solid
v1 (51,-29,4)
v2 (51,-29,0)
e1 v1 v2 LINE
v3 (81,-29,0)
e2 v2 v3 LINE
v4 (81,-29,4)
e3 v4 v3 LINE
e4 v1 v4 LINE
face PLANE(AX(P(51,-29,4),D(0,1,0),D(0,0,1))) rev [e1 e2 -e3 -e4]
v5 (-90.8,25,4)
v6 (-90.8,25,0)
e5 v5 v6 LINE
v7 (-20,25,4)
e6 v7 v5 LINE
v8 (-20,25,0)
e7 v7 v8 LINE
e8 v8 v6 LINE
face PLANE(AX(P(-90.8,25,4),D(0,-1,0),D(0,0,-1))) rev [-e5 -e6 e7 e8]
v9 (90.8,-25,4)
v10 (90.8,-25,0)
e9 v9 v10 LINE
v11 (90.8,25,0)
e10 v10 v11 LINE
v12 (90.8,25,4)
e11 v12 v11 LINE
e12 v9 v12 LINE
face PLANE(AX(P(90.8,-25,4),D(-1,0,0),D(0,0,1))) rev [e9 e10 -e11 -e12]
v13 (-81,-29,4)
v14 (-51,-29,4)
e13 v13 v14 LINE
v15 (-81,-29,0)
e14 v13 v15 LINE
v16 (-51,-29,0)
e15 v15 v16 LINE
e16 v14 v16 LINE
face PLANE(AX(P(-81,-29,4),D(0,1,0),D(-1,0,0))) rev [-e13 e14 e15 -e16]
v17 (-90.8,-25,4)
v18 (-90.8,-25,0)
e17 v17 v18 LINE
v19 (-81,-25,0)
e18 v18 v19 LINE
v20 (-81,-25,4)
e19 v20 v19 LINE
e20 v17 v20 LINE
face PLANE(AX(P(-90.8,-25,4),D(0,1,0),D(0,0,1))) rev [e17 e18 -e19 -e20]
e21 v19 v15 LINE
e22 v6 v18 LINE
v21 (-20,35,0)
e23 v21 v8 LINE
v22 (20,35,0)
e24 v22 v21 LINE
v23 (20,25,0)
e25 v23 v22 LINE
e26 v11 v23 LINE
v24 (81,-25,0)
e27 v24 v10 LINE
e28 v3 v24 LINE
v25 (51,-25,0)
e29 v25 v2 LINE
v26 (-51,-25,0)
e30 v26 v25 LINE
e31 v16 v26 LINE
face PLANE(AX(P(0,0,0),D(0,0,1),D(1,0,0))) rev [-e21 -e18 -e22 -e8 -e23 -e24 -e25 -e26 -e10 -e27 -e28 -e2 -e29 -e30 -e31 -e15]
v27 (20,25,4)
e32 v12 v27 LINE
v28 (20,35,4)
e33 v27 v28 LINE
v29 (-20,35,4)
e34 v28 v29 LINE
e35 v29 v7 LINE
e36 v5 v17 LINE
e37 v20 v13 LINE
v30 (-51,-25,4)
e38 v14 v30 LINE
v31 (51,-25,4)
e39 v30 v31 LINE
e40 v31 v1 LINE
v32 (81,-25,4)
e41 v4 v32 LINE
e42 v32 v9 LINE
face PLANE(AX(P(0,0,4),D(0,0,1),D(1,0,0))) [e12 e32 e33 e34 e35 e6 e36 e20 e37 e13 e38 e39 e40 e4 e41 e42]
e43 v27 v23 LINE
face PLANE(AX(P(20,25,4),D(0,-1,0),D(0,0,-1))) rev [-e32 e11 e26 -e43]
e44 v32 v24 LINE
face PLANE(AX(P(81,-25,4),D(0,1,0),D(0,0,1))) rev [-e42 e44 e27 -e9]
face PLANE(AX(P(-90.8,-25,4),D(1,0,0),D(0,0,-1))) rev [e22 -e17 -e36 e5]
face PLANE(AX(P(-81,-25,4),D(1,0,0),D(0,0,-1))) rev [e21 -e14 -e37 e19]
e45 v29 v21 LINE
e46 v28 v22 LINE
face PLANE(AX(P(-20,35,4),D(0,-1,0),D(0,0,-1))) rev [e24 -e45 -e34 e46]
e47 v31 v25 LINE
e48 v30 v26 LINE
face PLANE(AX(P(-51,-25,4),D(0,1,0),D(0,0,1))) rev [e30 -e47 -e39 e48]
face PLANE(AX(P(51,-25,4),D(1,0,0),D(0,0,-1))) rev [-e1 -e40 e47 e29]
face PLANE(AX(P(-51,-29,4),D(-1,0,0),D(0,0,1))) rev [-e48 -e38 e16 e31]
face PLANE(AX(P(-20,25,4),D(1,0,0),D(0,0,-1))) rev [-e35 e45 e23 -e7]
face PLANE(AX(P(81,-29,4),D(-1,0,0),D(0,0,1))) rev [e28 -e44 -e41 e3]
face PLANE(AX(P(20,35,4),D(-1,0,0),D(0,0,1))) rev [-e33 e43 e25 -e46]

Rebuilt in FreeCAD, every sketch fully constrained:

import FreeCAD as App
import Part
import Sketcher
from FreeCAD import Vector


def add_polygon(sketch, points):
    """Adds a closed chain of lines whose ends are joined by coincident constraints."""
    first, n = sketch.GeometryCount, len(points)
    for a, b in zip(points, points[1:] + points[:1]):
        sketch.addGeometry(Part.LineSegment(App.Vector(*a, 0), App.Vector(*b, 0)), False)
    for i in range(n):
        sketch.addConstraint(Sketcher.Constraint("Coincident", first + i, 2, first + (i + 1) % n, 1))

doc = App.newDocument("Part")
body = doc.addObject("PartDesign::Body", "Body")

# Sketch on XY plane
sketch1 = body.newObject("Sketcher::SketchObject", "Sketch")
sketch1.AttachmentSupport = (doc.getObject("XY_Plane"), [""])
sketch1.MapMode = "FlatFace"
add_polygon(sketch1, [(-81, -25), (-81, -29), (-51, -29), (-51, -25), (51, -25), (51, -29), (81, -29), (81, -25), (90.8, -25), (90.8, 25), (20, 25), (20, 35), (-20, 35), (-20, 25), (-90.8, 25), (-90.8, -25)])  # lines 0-15
sketch1.addConstraint(Sketcher.Constraint("Vertical", 0))
sketch1.addConstraint(Sketcher.Constraint("Horizontal", 1))
sketch1.addConstraint(Sketcher.Constraint("Vertical", 2))
sketch1.addConstraint(Sketcher.Constraint("Horizontal", 3))
sketch1.addConstraint(Sketcher.Constraint("Vertical", 4))
sketch1.addConstraint(Sketcher.Constraint("Horizontal", 5))
sketch1.addConstraint(Sketcher.Constraint("Vertical", 6))
sketch1.addConstraint(Sketcher.Constraint("Horizontal", 7))
sketch1.addConstraint(Sketcher.Constraint("Vertical", 8))
sketch1.addConstraint(Sketcher.Constraint("Horizontal", 9))
sketch1.addConstraint(Sketcher.Constraint("Vertical", 10))
sketch1.addConstraint(Sketcher.Constraint("Horizontal", 11))
sketch1.addConstraint(Sketcher.Constraint("Vertical", 12))
sketch1.addConstraint(Sketcher.Constraint("Horizontal", 13))
sketch1.addConstraint(Sketcher.Constraint("Vertical", 14))
sketch1.addConstraint(Sketcher.Constraint("Horizontal", 15))
sketch1.addConstraint(Sketcher.Constraint("Symmetric", 7, 2, 13, 2, -1, 1))
sketch1.addConstraint(Sketcher.Constraint("Symmetric", 1, 2, 4, 2, -2))
sketch1.addConstraint(Sketcher.Constraint("Symmetric", 9, 2, 12, 2, -2))
sketch1.addConstraint(Sketcher.Constraint("Symmetric", 6, 2, 15, 2, -2))
sketch1.addConstraint(Sketcher.Constraint("Horizontal", 3, 2, 6, 2))
sketch1.addConstraint(Sketcher.Constraint("DistanceX", 1, 1, 1, 2, 30.0))
sketch1.addConstraint(Sketcher.Constraint("DistanceX", 3, 1, 3, 2, 102.0))
sketch1.addConstraint(Sketcher.Constraint("DistanceX", 11, 2, 11, 1, 40.0))
sketch1.addConstraint(Sketcher.Constraint("DistanceY", 0, 2, 0, 1, 4.0))
sketch1.addConstraint(Sketcher.Constraint("DistanceY", 8, 1, 8, 2, 50.0))
sketch1.addConstraint(Sketcher.Constraint("DistanceY", 10, 1, 10, 2, 10.0))
sketch1.addConstraint(Sketcher.Constraint("DistanceX", 7, 1, 7, 2, 9.8))
pad1 = body.newObject("PartDesign::Pad", "Pad")
pad1.Profile = sketch1
pad1.Length = 4

doc.recompute()
